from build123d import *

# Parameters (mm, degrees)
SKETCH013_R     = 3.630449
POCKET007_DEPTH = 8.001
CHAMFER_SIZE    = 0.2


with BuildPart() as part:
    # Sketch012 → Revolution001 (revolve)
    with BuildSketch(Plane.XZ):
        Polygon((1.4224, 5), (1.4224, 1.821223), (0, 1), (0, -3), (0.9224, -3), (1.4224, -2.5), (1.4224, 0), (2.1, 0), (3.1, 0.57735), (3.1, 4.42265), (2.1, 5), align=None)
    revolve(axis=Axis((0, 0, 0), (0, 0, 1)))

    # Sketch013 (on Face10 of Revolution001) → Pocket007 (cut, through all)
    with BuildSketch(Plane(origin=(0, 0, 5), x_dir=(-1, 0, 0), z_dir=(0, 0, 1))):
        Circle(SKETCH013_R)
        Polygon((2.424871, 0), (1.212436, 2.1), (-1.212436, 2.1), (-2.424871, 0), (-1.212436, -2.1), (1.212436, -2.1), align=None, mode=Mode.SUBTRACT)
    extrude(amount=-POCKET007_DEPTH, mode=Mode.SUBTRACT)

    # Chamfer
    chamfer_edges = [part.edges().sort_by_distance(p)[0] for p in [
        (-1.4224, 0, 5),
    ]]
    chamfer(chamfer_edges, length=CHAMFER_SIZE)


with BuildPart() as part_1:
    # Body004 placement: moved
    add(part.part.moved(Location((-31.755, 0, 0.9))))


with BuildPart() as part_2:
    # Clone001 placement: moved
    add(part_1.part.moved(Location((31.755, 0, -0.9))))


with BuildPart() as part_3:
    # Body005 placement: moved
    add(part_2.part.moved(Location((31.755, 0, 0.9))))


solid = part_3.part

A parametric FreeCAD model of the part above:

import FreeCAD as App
import Part
import Sketcher
Q = App.Units.Quantity


def edges_at(feature, points):
    """Names of the edges that pass closest to the given points."""
    edges = feature.Shape.Edges
    near = lambda p: min(range(len(edges)), key=lambda i: edges[i].distToShape(Part.Vertex(*p))[0])
    return sorted({f"Edge{near(p) + 1}" for p in points})

doc = App.newDocument("Part")
body = doc.addObject("PartDesign::Body", "Body")

sketch1 = body.newObject("Sketcher::SketchObject", "Sketch")
sketch1.AttachmentSupport = (doc.getObject("XZ_Plane"), [""])
sketch1.MapMode = "FlatFace"
sketch1.addGeometry(Part.LineSegment(App.Vector(1.4224, 5, 0), App.Vector(1.4224, 1.821223, 0)), False)
sketch1.addGeometry(Part.LineSegment(App.Vector(1.4224, 1.821223, 0), App.Vector(0, 1, 0)), False)
sketch1.addGeometry(Part.LineSegment(App.Vector(0, 1, 0), App.Vector(0, -3, 0)), False)
sketch1.addGeometry(Part.LineSegment(App.Vector(0, -3, 0), App.Vector(0.9224, -3, 0)), False)
sketch1.addGeometry(Part.LineSegment(App.Vector(0.9224, -3, 0), App.Vector(1.4224, -2.5, 0)), False)
sketch1.addGeometry(Part.LineSegment(App.Vector(1.4224, -2.5, 0), App.Vector(1.4224, 0, 0)), False)
sketch1.addGeometry(Part.LineSegment(App.Vector(1.4224, 0, 0), App.Vector(2.1, 0, 0)), False)
sketch1.addGeometry(Part.LineSegment(App.Vector(2.1, 0, 0), App.Vector(3.1, 0.57735, 0)), False)
sketch1.addGeometry(Part.LineSegment(App.Vector(3.1, 0.57735, 0), App.Vector(3.1, 4.42265, 0)), False)
sketch1.addGeometry(Part.LineSegment(App.Vector(3.1, 4.42265, 0), App.Vector(2.1, 5, 0)), False)
sketch1.addGeometry(Part.LineSegment(App.Vector(2.1, 5, 0), App.Vector(1.4224, 5, 0)), False)
sketch1.addConstraint(Sketcher.Constraint("Coincident", 0, 2, 1, 1))
sketch1.addConstraint(Sketcher.Constraint("Coincident", 1, 2, 2, 1))
sketch1.addConstraint(Sketcher.Constraint("Coincident", 2, 2, 3, 1))
sketch1.addConstraint(Sketcher.Constraint("Coincident", 3, 2, 4, 1))
sketch1.addConstraint(Sketcher.Constraint("Coincident", 4, 2, 5, 1))
sketch1.addConstraint(Sketcher.Constraint("Coincident", 5, 2, 6, 1))
sketch1.addConstraint(Sketcher.Constraint("Coincident", 6, 2, 7, 1))
sketch1.addConstraint(Sketcher.Constraint("Coincident", 7, 2, 8, 1))
sketch1.addConstraint(Sketcher.Constraint("Coincident", 8, 2, 9, 1))
sketch1.addConstraint(Sketcher.Constraint("Coincident", 9, 2, 10, 1))
sketch1.addConstraint(Sketcher.Constraint("Coincident", 10, 2, 0, 1))
sketch1.addConstraint(Sketcher.Constraint("Vertical", 0))
sketch1.addConstraint(Sketcher.Constraint("Vertical", 2))
sketch1.addConstraint(Sketcher.Constraint("Horizontal", 3))
sketch1.addConstraint(Sketcher.Constraint("Vertical", 5))
sketch1.addConstraint(Sketcher.Constraint("Horizontal", 6))
sketch1.addConstraint(Sketcher.Constraint("Vertical", 8))
sketch1.addConstraint(Sketcher.Constraint("Horizontal", 10))
sketch1.addConstraint(Sketcher.Constraint("PointOnObject", 1, 2, -2))
sketch1.addConstraint(Sketcher.Constraint("PointOnObject", 5, 2, -1))
sketch1.addConstraint(Sketcher.Constraint("Parallel", 1, 7))
sketch1.addConstraint(Sketcher.Constraint("Vertical", 0, 2, 4, 2))
sketch1.addConstraint(Sketcher.Constraint("Vertical", 6, 2, 9, 2))
sketch1.addConstraint(Sketcher.Constraint("Equal", 7, 9))
sketch1.addConstraint(Sketcher.Constraint("DistanceY", 2, 2, 2, 1, Q("4 mm")))
sketch1.addConstraint(Sketcher.Constraint("Angle", 1, Q("-150.000001 deg")))
sketch1.addConstraint(Sketcher.Constraint("Angle", 4, Q("45 deg")))
sketch1.addConstraint(Sketcher.Constraint("DistanceY", 5, 1, 5, 2, Q("2.5 mm")))
sketch1.addConstraint(Sketcher.Constraint("DistanceY", -1, 1, 1, 2, Q("1 mm")))
sketch1.addConstraint(Sketcher.Constraint("DistanceY", -1, 1, 9, 2, Q("5 mm")))
sketch1.addConstraint(Sketcher.Constraint("DistanceX", 6, 2, 7, 2, Q("1 mm")))
sketch1.addConstraint(Sketcher.Constraint("DistanceX", -1, 1, 6, 2, Q("2.1 mm")))
sketch1.addConstraint(Sketcher.Constraint("DistanceX", 3, 1, 3, 2, Q("0.9224 mm")))
revolution = body.newObject("PartDesign::Revolution", "Revolution")
revolution.Profile = sketch1
revolution.ReferenceAxis = (sketch1, ["V_Axis"])
revolution.Angle = 360

sketch2 = body.newObject("Sketcher::SketchObject", "Sketch001")
sketch2.AttachmentSupport = (doc.getObject("XY_Plane"), [""])
sketch2.MapMode = "FlatFace"
sketch2.AttachmentOffset = App.Placement(App.Vector(0, 0, 5), App.Rotation())
sketch2.addGeometry(Part.Circle(App.Vector(0, 0, 0), App.Vector(0, 0, 1), 3.630449), False)
sketch2.addGeometry(Part.LineSegment(App.Vector(-1.212436, -2.1, 0), App.Vector(-2.424871, 0, 0)), False)
sketch2.addGeometry(Part.LineSegment(App.Vector(-2.424871, 0, 0), App.Vector(-1.212436, 2.1, 0)), False)
sketch2.addGeometry(Part.LineSegment(App.Vector(-1.212436, 2.1, 0), App.Vector(1.212436, 2.1, 0)), False)
sketch2.addGeometry(Part.LineSegment(App.Vector(1.212436, 2.1, 0), App.Vector(2.424871, 0, 0)), False)
sketch2.addGeometry(Part.LineSegment(App.Vector(2.424871, 0, 0), App.Vector(1.212436, -2.1, 0)), False)
sketch2.addGeometry(Part.LineSegment(App.Vector(1.212436, -2.1, 0), App.Vector(-1.212436, -2.1, 0)), False)
sketch2.addConstraint(Sketcher.Constraint("Coincident", 1, 2, 2, 1))
sketch2.addConstraint(Sketcher.Constraint("Coincident", 2, 2, 3, 1))
sketch2.addConstraint(Sketcher.Constraint("Coincident", 3, 2, 4, 1))
sketch2.addConstraint(Sketcher.Constraint("Coincident", 4, 2, 5, 1))
sketch2.addConstraint(Sketcher.Constraint("Coincident", 5, 2, 6, 1))
sketch2.addConstraint(Sketcher.Constraint("Coincident", 6, 2, 1, 1))
sketch2.addConstraint(Sketcher.Constraint("Horizontal", 3))
sketch2.addConstraint(Sketcher.Constraint("Horizontal", 6))
sketch2.addConstraint(Sketcher.Constraint("Coincident", 0, 3, -1, 1))
sketch2.addConstraint(Sketcher.Constraint("Symmetric", 1, 2, 4, 2, -1, 1))
sketch2.addConstraint(Sketcher.Constraint("Symmetric", 2, 2, 5, 2, -1, 1))
sketch2.addConstraint(Sketcher.Constraint("PointOnObject", 1, 2, -1))
sketch2.addConstraint(Sketcher.Constraint("Parallel", 1, 4))
sketch2.addConstraint(Sketcher.Constraint("Vertical", 3, 2, 5, 2))
sketch2.addConstraint(Sketcher.Constraint("Angle", 1, Q("119.999988 deg")))
sketch2.addConstraint(Sketcher.Constraint("DistanceY", -1, 1, 2, 2, Q("2.1 mm")))
sketch2.addConstraint(Sketcher.Constraint("Diameter", 0, Q("7.260898 mm")))
sketch2.addConstraint(Sketcher.Constraint("DistanceX", 3, 1, 3, 2, Q("2.424872 mm")))
pocket1 = body.newObject("PartDesign::Pocket", "Pocket")
pocket1.Profile = sketch2
pocket1.Type = "ThroughAll"
doc.recompute()

chamfer = body.newObject("PartDesign::Chamfer", "Chamfer")
chamfer.Base = (pocket1, edges_at(pocket1, [(-1.422, 0, 5)]))
chamfer.Size = 0.2
body2 = doc.addObject("PartDesign::Body", "Body001")
doc.recompute()

body.Placement = App.Placement(App.Vector(-31.755, 0, 0.9), App.Rotation(App.Vector(0, 0, 1), 0))
boolean = body2.newObject("PartDesign::Boolean", "Boolean")
boolean.Type = "Fuse"
boolean.addObjects([body])
body3 = doc.addObject("PartDesign::Body", "Body002")
doc.recompute()

body2.Placement = App.Placement(App.Vector(31.755, 0, -0.9), App.Rotation(App.Vector(0, 0, 1), 0))
boolean2 = body3.newObject("PartDesign::Boolean", "Boolean001")
boolean2.Type = "Fuse"
boolean2.addObjects([body2])
body4 = doc.addObject("PartDesign::Body", "Body003")
doc.recompute()

body3.Placement = App.Placement(App.Vector(31.755, 0, 0.9), App.Rotation(App.Vector(0, 0, 1), 0))
boolean3 = body4.newObject("PartDesign::Boolean", "Boolean002")
boolean3.Type = "Fuse"
boolean3.addObjects([body3])

doc.recompute()
